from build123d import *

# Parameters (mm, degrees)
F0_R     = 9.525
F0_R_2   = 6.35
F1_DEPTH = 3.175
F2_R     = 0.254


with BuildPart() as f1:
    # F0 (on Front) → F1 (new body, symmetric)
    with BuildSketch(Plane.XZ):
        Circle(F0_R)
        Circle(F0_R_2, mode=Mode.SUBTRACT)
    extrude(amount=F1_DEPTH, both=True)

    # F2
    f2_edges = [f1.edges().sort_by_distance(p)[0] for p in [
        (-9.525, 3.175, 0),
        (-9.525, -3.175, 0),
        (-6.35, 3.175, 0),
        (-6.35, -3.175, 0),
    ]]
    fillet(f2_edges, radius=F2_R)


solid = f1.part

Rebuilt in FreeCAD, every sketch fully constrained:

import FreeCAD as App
import Part
import Sketcher

V = App.Vector
Q = App.Units.Quantity


def edges_at(feature, points):
    """Names of the edges that pass closest to the given points."""
    edges = feature.Shape.Edges
    near = lambda p: min(range(len(edges)), key=lambda i: edges[i].distToShape(Part.Vertex(*p))[0])
    return sorted({f"Edge{near(p) + 1}" for p in points})

doc = App.newDocument("Part")
body = doc.addObject("PartDesign::Body", "Body")

# Sketch on XZ plane
sketch1 = body.newObject("Sketcher::SketchObject", "Sketch")
sketch1.AttachmentSupport = (doc.getObject("XZ_Plane"), [""])
sketch1.MapMode = "FlatFace"
sketch1.addGeometry(Part.Circle(V(0, 0, 0), V(0, 0, 1), 9.525), False)
sketch1.addGeometry(Part.Circle(V(0, 0, 0), V(0, 0, 1), 6.35), False)
sketch1.addConstraint(Sketcher.Constraint("Coincident", 0, 3, -1, 1))
sketch1.addConstraint(Sketcher.Constraint("Coincident", 1, 3, -1, 1))
sketch1.addConstraint(Sketcher.Constraint("Diameter", 1, Q("0.5 in")))
sketch1.addConstraint(Sketcher.Constraint("Diameter", 0, Q("0.75 in")))
pad1 = body.newObject("PartDesign::Pad", "Pad")
pad1.Profile = sketch1
pad1.Length = Q("0.25 in")
pad1.Midplane = True
doc.recompute()

fillet = body.newObject("PartDesign::Fillet", "Fillet")
fillet.Base = (pad1, edges_at(pad1, [
    (-9.525, 3.175, 0),
    (-9.525, -3.175, 0),
    (-6.35, 3.175, 0),
    (-6.35, -3.175, 0),
]))
fillet.Radius = Q("0.01 in")

doc.recompute()
